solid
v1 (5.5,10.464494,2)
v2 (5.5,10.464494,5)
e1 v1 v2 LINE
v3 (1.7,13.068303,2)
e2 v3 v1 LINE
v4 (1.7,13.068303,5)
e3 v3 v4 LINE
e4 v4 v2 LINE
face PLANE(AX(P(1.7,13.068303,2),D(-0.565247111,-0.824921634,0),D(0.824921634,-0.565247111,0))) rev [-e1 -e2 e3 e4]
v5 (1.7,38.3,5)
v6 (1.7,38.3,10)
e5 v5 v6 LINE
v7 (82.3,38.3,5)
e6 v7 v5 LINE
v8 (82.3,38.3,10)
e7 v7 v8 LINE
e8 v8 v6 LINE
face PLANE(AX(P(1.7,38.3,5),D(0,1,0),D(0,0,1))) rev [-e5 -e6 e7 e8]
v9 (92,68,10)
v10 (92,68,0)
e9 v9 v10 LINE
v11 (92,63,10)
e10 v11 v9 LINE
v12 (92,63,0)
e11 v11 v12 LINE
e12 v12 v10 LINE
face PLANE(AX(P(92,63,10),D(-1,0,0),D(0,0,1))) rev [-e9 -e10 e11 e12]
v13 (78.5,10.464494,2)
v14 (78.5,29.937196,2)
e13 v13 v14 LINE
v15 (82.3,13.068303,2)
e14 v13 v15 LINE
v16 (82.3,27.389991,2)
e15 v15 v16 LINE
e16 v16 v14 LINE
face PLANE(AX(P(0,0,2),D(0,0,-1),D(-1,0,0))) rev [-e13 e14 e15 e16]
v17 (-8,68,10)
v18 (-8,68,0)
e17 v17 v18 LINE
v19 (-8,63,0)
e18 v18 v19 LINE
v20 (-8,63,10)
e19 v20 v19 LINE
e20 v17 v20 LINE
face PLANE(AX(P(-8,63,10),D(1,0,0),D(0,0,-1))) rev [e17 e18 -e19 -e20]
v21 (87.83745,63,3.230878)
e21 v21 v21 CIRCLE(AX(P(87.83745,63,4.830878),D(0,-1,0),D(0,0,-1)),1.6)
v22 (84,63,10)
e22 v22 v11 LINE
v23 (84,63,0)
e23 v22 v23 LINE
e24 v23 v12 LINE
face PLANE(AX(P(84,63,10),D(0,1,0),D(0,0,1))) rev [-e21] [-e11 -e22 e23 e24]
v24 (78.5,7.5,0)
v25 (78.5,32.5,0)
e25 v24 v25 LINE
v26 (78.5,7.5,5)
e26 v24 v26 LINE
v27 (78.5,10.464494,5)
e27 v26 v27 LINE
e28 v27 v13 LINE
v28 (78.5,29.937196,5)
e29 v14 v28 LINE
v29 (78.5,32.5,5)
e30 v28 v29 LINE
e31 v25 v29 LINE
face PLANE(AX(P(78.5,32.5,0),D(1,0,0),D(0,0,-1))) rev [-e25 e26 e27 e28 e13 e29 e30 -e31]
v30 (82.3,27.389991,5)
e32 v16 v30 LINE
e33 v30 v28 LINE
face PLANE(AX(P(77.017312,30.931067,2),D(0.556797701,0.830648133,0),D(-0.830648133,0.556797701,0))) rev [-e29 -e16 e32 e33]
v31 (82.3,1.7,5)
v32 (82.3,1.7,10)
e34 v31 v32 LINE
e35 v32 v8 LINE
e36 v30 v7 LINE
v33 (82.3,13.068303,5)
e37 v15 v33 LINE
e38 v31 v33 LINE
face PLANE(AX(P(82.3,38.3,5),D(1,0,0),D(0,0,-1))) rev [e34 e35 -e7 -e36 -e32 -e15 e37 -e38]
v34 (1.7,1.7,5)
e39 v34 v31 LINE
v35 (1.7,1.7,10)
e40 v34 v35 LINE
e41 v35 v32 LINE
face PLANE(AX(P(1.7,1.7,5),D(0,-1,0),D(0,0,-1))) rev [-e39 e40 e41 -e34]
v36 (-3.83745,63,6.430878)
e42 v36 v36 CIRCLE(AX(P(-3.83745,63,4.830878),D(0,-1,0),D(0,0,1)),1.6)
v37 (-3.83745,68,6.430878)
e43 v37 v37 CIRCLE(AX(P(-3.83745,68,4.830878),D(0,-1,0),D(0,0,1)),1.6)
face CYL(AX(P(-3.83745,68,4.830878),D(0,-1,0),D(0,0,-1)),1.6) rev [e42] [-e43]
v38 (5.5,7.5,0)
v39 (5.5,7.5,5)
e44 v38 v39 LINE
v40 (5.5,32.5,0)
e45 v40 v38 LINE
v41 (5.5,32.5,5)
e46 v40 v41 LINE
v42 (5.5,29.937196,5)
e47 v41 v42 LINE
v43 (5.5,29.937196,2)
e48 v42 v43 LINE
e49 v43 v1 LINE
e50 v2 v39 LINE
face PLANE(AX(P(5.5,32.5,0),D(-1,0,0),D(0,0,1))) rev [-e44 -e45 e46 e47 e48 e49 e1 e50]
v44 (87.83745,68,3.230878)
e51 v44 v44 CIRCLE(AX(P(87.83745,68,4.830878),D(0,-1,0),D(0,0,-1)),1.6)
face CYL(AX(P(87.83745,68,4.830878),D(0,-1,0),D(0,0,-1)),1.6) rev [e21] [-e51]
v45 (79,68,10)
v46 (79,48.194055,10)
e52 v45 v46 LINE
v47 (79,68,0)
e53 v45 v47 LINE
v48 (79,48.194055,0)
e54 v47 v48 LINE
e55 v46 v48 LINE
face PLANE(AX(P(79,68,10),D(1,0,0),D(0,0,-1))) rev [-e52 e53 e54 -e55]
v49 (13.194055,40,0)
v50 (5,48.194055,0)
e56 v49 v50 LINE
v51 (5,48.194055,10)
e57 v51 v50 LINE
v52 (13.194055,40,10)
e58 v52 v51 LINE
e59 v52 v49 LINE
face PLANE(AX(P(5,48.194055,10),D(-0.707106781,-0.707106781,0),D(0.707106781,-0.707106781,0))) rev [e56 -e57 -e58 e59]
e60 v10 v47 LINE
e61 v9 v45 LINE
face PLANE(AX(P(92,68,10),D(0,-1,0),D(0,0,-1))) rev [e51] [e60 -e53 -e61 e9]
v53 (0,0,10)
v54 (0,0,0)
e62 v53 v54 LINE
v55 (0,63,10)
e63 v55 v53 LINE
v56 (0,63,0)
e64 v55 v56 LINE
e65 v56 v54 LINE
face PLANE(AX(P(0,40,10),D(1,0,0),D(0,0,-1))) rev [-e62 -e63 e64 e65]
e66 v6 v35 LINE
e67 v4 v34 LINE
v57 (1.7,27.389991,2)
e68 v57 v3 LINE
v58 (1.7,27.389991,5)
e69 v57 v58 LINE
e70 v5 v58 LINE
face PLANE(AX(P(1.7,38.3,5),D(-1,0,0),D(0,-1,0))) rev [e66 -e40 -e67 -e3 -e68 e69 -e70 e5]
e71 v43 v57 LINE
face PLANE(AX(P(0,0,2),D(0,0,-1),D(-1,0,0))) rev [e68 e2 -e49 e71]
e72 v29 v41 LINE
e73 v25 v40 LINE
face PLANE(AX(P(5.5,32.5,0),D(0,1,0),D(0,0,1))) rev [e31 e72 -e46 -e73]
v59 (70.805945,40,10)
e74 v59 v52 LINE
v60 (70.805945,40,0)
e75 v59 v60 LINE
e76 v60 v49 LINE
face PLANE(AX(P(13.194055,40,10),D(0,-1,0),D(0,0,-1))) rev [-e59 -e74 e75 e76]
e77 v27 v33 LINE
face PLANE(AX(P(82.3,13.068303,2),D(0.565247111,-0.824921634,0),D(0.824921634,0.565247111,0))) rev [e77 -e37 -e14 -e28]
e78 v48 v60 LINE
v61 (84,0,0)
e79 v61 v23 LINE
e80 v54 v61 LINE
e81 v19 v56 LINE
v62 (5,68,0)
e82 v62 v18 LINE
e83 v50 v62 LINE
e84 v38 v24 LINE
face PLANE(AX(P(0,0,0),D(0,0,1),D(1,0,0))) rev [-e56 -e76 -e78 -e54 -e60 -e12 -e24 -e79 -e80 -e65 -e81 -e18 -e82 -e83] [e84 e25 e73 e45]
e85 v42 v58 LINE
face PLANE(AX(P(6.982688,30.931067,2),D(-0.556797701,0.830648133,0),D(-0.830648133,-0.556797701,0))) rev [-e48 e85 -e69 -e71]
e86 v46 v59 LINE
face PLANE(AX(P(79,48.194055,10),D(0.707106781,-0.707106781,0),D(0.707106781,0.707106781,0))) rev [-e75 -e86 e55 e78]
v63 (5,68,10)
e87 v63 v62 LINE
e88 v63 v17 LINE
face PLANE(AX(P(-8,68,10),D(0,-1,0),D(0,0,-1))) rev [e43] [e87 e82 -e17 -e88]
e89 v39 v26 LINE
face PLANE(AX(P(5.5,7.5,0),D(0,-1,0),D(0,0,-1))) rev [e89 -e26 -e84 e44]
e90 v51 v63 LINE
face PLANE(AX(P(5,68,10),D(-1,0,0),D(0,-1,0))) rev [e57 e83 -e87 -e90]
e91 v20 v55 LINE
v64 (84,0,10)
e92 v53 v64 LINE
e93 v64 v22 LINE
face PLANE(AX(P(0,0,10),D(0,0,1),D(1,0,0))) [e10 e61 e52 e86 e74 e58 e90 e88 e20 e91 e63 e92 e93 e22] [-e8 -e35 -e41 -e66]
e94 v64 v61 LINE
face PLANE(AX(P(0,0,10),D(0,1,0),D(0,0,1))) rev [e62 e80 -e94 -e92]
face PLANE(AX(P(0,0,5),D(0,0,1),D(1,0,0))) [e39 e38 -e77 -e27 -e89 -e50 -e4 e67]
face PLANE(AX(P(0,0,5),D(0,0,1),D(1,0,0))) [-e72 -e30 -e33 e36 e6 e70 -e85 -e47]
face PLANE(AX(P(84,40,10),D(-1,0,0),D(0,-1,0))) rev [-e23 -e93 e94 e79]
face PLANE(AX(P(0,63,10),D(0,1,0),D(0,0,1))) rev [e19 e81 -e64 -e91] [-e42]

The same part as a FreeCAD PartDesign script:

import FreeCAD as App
import Part
import Sketcher
Q = App.Units.Quantity

doc = App.newDocument("Part")
body = doc.addObject("PartDesign::Body", "Body")

sketch1 = doc.addObject("Sketcher::SketchObject", "Sketch")
body.addObject(sketch1)
sketch1.AttachmentSupport = (doc.XY_Plane, [""])
sketch1.MapMode = "FlatFace"
sketch1.addGeometry([
    Part.LineSegment(App.Vector(0, 63, 0), App.Vector(0, 0, 0)),
    Part.LineSegment(App.Vector(0, 0, 0), App.Vector(84, 0, 0)),
    Part.LineSegment(App.Vector(84, 0, 0), App.Vector(84, 63, 0)),
    Part.LineSegment(App.Vector(84, 63, 0), App.Vector(92, 63, 0)),
    Part.LineSegment(App.Vector(92, 63, 0), App.Vector(92, 68, 0)),
    Part.LineSegment(App.Vector(92, 68, 0), App.Vector(79, 68, 0)),
    Part.LineSegment(App.Vector(79, 68, 0), App.Vector(79, 48, 0)),
    Part.LineSegment(App.Vector(79, 48, 0), App.Vector(71, 40, 0)),
    Part.LineSegment(App.Vector(71, 40, 0), App.Vector(13, 40, 0)),
    Part.LineSegment(App.Vector(13, 40, 0), App.Vector(5, 48, 0)),
    Part.LineSegment(App.Vector(5, 48, 0), App.Vector(5, 68, 0)),
    Part.LineSegment(App.Vector(5, 68, 0), App.Vector(-8, 68, 0)),
    Part.LineSegment(App.Vector(-8, 68, 0), App.Vector(-8, 63, 0)),
    Part.LineSegment(App.Vector(-8, 63, 0), App.Vector(0, 63, 0)),
], False)
sketch1.addConstraint([
    Sketcher.Constraint("Coincident", 0, 2, 1, 1),
    Sketcher.Constraint("Coincident", 1, 2, 2, 1),
    Sketcher.Constraint("Coincident", 2, 2, 3, 1),
    Sketcher.Constraint("Coincident", 3, 2, 4, 1),
    Sketcher.Constraint("Coincident", 4, 2, 5, 1),
    Sketcher.Constraint("Coincident", 5, 2, 6, 1),
    Sketcher.Constraint("Coincident", 6, 2, 7, 1),
    Sketcher.Constraint("Coincident", 7, 2, 8, 1),
    Sketcher.Constraint("Coincident", 8, 2, 9, 1),
    Sketcher.Constraint("Coincident", 9, 2, 10, 1),
    Sketcher.Constraint("Coincident", 10, 2, 11, 1),
    Sketcher.Constraint("Coincident", 11, 2, 12, 1),
    Sketcher.Constraint("Coincident", 12, 2, 13, 1),
    Sketcher.Constraint("Coincident", 13, 2, 0, 1),
    Sketcher.Constraint("Vertical", 0),
    Sketcher.Constraint("Horizontal", 1),
    Sketcher.Constraint("Vertical", 2),
    Sketcher.Constraint("Horizontal", 3),
    Sketcher.Constraint("Vertical", 4),
    Sketcher.Constraint("Horizontal", 5),
    Sketcher.Constraint("Vertical", 6),
    Sketcher.Constraint("Horizontal", 8),
    Sketcher.Constraint("Vertical", 10),
    Sketcher.Constraint("Horizontal", 11),
    Sketcher.Constraint("Vertical", 12),
    Sketcher.Constraint("Horizontal", 13),
    Sketcher.Constraint("Coincident", 0, 2, -1, 1),
    Sketcher.Constraint("Perpendicular", 7, 9),
    Sketcher.Constraint("Horizontal", 6, 2, 9, 2),
    Sketcher.Constraint("Horizontal", 5, 2, 10, 2),
    Sketcher.Constraint("Horizontal", 3, 2, 12, 2),
    Sketcher.Constraint("Equal", 5, 11),
    Sketcher.Constraint("Equal", 3, 13),
    Sketcher.Constraint("Equal", 7, 9),
    Sketcher.Constraint("DistanceX", 1, 1, 1, 2, Q("84 mm")),
    Sketcher.Constraint("DistanceX", 3, 1, 3, 2, Q("8 mm")),
    Sketcher.Constraint("DistanceX", 5, 2, 5, 1, Q("13 mm")),
    Sketcher.Constraint("DistanceY", 0, 2, 0, 1, Q("63 mm")),
    Sketcher.Constraint("DistanceY", 4, 1, 4, 2, Q("5 mm")),
    Sketcher.Constraint("DistanceY", -1, 1, 7, 2, Q("40 mm")),
    Sketcher.Constraint("DistanceX", 8, 2, 8, 1, Q("57.611889 mm")),
])
pad1 = doc.addObject("PartDesign::Pad", "Pad")
body.addObject(pad1)
pad1.Profile = sketch1
pad1.Length = 10

sketch2 = doc.addObject("Sketcher::SketchObject", "Sketch001")
body.addObject(sketch2)
sketch2.AttachmentSupport = (doc.XY_Plane, [""])
sketch2.MapMode = "FlatFace"
sketch2.AttachmentOffset = App.Placement(App.Vector(0, 0, 10), App.Rotation())
sketch2.addGeometry([
    Part.LineSegment(App.Vector(2, 38, 0), App.Vector(2, 2, 0)),
    Part.LineSegment(App.Vector(2, 2, 0), App.Vector(82, 2, 0)),
    Part.LineSegment(App.Vector(82, 2, 0), App.Vector(82, 38, 0)),
    Part.LineSegment(App.Vector(82, 38, 0), App.Vector(2, 38, 0)),
], False)
sketch2.addConstraint([
    Sketcher.Constraint("Coincident", 0, 2, 1, 1),
    Sketcher.Constraint("Coincident", 1, 2, 2, 1),
    Sketcher.Constraint("Coincident", 2, 2, 3, 1),
    Sketcher.Constraint("Coincident", 3, 2, 0, 1),
    Sketcher.Constraint("Vertical", 0),
    Sketcher.Constraint("Horizontal", 1),
    Sketcher.Constraint("Vertical", 2),
    Sketcher.Constraint("Horizontal", 3),
    Sketcher.Constraint("DistanceX", 1, 1, 1, 2, Q("80.6 mm")),
    Sketcher.Constraint("DistanceY", 0, 2, 0, 1, Q("36.6 mm")),
    Sketcher.Constraint("DistanceX", -1, 1, 0, 2, Q("1.7 mm")),
    Sketcher.Constraint("DistanceY", -1, 1, 0, 2, Q("1.7 mm")),
])
pocket1 = doc.addObject("PartDesign::Pocket", "Pocket")
body.addObject(pocket1)
pocket1.Profile = sketch2
pocket1.Length = 5

sketch3 = doc.addObject("Sketcher::SketchObject", "Sketch002")
body.addObject(sketch3)
sketch3.AttachmentSupport = (doc.XY_Plane, [""])
sketch3.MapMode = "FlatFace"
sketch3.AttachmentOffset = App.Placement(App.Vector(0, 0, 5), App.Rotation())
sketch3.addGeometry([
    Part.LineSegment(App.Vector(6, 32, 0), App.Vector(6, 8, 0)),
    Part.LineSegment(App.Vector(6, 8, 0), App.Vector(78, 8, 0)),
    Part.LineSegment(App.Vector(78, 8, 0), App.Vector(78, 32, 0)),
    Part.LineSegment(App.Vector(78, 32, 0), App.Vector(6, 32, 0)),
], False)
sketch3.addConstraint([
    Sketcher.Constraint("Coincident", 0, 2, 1, 1),
    Sketcher.Constraint("Coincident", 1, 2, 2, 1),
    Sketcher.Constraint("Coincident", 2, 2, 3, 1),
    Sketcher.Constraint("Coincident", 3, 2, 0, 1),
    Sketcher.Constraint("Vertical", 0),
    Sketcher.Constraint("Horizontal", 1),
    Sketcher.Constraint("Vertical", 2),
    Sketcher.Constraint("Horizontal", 3),
    Sketcher.Constraint("DistanceX", 1, 1, 1, 2, Q("73 mm")),
    Sketcher.Constraint("DistanceY", 0, 2, 0, 1, Q("25 mm")),
    Sketcher.Constraint("DistanceX", -1, 1, 0, 2, Q("5.5 mm")),
    Sketcher.Constraint("DistanceY", -1, 1, 0, 2, Q("7.5 mm")),
])
pocket2 = doc.addObject("PartDesign::Pocket", "Pocket001")
body.addObject(pocket2)
pocket2.Profile = sketch3
pocket2.Type = "ThroughAll"

sketch4 = doc.addObject("Sketcher::SketchObject", "Sketch003")
body.addObject(sketch4)
sketch4.AttachmentSupport = (doc.XY_Plane, [""])
sketch4.MapMode = "FlatFace"
sketch4.AttachmentOffset = App.Placement(App.Vector(0, 0, 5), App.Rotation())
sketch4.addGeometry([
    Part.LineSegment(App.Vector(82, 27, 0), App.Vector(77, 31, 0)),
    Part.LineSegment(App.Vector(77, 31, 0), App.Vector(77, 9, 0)),
    Part.LineSegment(App.Vector(77, 9, 0), App.Vector(82, 13, 0)),
    Part.LineSegment(App.Vector(82, 13, 0), App.Vector(82, 27, 0)),
    Part.LineSegment(App.Vector(7, 9, 0), App.Vector(7, 31, 0)),
    Part.LineSegment(App.Vector(7, 31, 0), App.Vector(2, 27, 0)),
    Part.LineSegment(App.Vector(2, 27, 0), App.Vector(2, 13, 0)),
    Part.LineSegment(App.Vector(2, 13, 0), App.Vector(7, 9, 0)),
], False)
sketch4.addConstraint([
    Sketcher.Constraint("Coincident", 0, 2, 1, 1),
    Sketcher.Constraint("Coincident", 1, 2, 2, 1),
    Sketcher.Constraint("Coincident", 2, 2, 3, 1),
    Sketcher.Constraint("Coincident", 3, 2, 0, 1),
    Sketcher.Constraint("Coincident", 4, 2, 5, 1),
    Sketcher.Constraint("Coincident", 5, 2, 6, 1),
    Sketcher.Constraint("Coincident", 6, 2, 7, 1),
    Sketcher.Constraint("Coincident", 7, 2, 4, 1),
    Sketcher.Constraint("Vertical", 1),
    Sketcher.Constraint("Vertical", 3),
    Sketcher.Constraint("Vertical", 4),
    Sketcher.Constraint("Vertical", 6),
    Sketcher.Constraint("Horizontal", 0, 2, 4, 2),
    Sketcher.Constraint("Horizontal", 3, 2, 5, 2),
    Sketcher.Constraint("Horizontal", 2, 2, 6, 2),
    Sketcher.Constraint("Horizontal", 1, 2, 7, 2),
    Sketcher.Constraint("Equal", 0, 5),
    Sketcher.Constraint("DistanceX", -1, 1, 2, 2, Q("82.3 mm")),
    Sketcher.Constraint("DistanceX", -1, 1, 5, 2, Q("1.7 mm")),
    Sketcher.Constraint("DistanceY", 1, 2, 1, 1, Q("21.482531 mm")),
    Sketcher.Constraint("Distance", 0, Q("6.359718 mm")),
    Sketcher.Constraint("DistanceY", 3, 1, 3, 2, Q("14.321687 mm")),
    Sketcher.Constraint("DistanceX", -1, 1, 0, 2, Q("77.017312 mm")),
    Sketcher.Constraint("DistanceY", -1, 1, 3, 2, Q("27.389991 mm")),
])
pocket3 = doc.addObject("PartDesign::Pocket", "Pocket002")
body.addObject(pocket3)
pocket3.Profile = sketch4
pocket3.Length = 3

sketch5 = doc.addObject("Sketcher::SketchObject", "Sketch004")
body.addObject(sketch5)
sketch5.AttachmentSupport = (doc.XZ_Plane, [""])
sketch5.MapMode = "FlatFace"
sketch5.AttachmentOffset = App.Placement(App.Vector(0, 0, -63), App.Rotation())
sketch5.addGeometry([
    Part.Circle(App.Vector(87.8, 4.8, 0), App.Vector(0, 0, 1), 1.6),
    Part.Circle(App.Vector(-3.8, 4.8, 0), App.Vector(0, 0, 1), 1.6),
], False)
sketch5.addConstraint([
    Sketcher.Constraint("Equal", 0, 1),
    Sketcher.Constraint("Horizontal", 0, 3, 1, 3),
    Sketcher.Constraint("Diameter", 0, Q("3.2 mm")),
    Sketcher.Constraint("DistanceX", 1, 3, 0, 3, Q("91.674901 mm")),
    Sketcher.Constraint("DistanceX", -1, 1, 0, 3, Q("87.83745 mm")),
    Sketcher.Constraint("DistanceY", -1, 1, 0, 3, Q("4.830878 mm")),
])
pocket4 = doc.addObject("PartDesign::Pocket", "Pocket003")
body.addObject(pocket4)
pocket4.Profile = sketch5
pocket4.Type = "ThroughAll"

doc.recompute()
